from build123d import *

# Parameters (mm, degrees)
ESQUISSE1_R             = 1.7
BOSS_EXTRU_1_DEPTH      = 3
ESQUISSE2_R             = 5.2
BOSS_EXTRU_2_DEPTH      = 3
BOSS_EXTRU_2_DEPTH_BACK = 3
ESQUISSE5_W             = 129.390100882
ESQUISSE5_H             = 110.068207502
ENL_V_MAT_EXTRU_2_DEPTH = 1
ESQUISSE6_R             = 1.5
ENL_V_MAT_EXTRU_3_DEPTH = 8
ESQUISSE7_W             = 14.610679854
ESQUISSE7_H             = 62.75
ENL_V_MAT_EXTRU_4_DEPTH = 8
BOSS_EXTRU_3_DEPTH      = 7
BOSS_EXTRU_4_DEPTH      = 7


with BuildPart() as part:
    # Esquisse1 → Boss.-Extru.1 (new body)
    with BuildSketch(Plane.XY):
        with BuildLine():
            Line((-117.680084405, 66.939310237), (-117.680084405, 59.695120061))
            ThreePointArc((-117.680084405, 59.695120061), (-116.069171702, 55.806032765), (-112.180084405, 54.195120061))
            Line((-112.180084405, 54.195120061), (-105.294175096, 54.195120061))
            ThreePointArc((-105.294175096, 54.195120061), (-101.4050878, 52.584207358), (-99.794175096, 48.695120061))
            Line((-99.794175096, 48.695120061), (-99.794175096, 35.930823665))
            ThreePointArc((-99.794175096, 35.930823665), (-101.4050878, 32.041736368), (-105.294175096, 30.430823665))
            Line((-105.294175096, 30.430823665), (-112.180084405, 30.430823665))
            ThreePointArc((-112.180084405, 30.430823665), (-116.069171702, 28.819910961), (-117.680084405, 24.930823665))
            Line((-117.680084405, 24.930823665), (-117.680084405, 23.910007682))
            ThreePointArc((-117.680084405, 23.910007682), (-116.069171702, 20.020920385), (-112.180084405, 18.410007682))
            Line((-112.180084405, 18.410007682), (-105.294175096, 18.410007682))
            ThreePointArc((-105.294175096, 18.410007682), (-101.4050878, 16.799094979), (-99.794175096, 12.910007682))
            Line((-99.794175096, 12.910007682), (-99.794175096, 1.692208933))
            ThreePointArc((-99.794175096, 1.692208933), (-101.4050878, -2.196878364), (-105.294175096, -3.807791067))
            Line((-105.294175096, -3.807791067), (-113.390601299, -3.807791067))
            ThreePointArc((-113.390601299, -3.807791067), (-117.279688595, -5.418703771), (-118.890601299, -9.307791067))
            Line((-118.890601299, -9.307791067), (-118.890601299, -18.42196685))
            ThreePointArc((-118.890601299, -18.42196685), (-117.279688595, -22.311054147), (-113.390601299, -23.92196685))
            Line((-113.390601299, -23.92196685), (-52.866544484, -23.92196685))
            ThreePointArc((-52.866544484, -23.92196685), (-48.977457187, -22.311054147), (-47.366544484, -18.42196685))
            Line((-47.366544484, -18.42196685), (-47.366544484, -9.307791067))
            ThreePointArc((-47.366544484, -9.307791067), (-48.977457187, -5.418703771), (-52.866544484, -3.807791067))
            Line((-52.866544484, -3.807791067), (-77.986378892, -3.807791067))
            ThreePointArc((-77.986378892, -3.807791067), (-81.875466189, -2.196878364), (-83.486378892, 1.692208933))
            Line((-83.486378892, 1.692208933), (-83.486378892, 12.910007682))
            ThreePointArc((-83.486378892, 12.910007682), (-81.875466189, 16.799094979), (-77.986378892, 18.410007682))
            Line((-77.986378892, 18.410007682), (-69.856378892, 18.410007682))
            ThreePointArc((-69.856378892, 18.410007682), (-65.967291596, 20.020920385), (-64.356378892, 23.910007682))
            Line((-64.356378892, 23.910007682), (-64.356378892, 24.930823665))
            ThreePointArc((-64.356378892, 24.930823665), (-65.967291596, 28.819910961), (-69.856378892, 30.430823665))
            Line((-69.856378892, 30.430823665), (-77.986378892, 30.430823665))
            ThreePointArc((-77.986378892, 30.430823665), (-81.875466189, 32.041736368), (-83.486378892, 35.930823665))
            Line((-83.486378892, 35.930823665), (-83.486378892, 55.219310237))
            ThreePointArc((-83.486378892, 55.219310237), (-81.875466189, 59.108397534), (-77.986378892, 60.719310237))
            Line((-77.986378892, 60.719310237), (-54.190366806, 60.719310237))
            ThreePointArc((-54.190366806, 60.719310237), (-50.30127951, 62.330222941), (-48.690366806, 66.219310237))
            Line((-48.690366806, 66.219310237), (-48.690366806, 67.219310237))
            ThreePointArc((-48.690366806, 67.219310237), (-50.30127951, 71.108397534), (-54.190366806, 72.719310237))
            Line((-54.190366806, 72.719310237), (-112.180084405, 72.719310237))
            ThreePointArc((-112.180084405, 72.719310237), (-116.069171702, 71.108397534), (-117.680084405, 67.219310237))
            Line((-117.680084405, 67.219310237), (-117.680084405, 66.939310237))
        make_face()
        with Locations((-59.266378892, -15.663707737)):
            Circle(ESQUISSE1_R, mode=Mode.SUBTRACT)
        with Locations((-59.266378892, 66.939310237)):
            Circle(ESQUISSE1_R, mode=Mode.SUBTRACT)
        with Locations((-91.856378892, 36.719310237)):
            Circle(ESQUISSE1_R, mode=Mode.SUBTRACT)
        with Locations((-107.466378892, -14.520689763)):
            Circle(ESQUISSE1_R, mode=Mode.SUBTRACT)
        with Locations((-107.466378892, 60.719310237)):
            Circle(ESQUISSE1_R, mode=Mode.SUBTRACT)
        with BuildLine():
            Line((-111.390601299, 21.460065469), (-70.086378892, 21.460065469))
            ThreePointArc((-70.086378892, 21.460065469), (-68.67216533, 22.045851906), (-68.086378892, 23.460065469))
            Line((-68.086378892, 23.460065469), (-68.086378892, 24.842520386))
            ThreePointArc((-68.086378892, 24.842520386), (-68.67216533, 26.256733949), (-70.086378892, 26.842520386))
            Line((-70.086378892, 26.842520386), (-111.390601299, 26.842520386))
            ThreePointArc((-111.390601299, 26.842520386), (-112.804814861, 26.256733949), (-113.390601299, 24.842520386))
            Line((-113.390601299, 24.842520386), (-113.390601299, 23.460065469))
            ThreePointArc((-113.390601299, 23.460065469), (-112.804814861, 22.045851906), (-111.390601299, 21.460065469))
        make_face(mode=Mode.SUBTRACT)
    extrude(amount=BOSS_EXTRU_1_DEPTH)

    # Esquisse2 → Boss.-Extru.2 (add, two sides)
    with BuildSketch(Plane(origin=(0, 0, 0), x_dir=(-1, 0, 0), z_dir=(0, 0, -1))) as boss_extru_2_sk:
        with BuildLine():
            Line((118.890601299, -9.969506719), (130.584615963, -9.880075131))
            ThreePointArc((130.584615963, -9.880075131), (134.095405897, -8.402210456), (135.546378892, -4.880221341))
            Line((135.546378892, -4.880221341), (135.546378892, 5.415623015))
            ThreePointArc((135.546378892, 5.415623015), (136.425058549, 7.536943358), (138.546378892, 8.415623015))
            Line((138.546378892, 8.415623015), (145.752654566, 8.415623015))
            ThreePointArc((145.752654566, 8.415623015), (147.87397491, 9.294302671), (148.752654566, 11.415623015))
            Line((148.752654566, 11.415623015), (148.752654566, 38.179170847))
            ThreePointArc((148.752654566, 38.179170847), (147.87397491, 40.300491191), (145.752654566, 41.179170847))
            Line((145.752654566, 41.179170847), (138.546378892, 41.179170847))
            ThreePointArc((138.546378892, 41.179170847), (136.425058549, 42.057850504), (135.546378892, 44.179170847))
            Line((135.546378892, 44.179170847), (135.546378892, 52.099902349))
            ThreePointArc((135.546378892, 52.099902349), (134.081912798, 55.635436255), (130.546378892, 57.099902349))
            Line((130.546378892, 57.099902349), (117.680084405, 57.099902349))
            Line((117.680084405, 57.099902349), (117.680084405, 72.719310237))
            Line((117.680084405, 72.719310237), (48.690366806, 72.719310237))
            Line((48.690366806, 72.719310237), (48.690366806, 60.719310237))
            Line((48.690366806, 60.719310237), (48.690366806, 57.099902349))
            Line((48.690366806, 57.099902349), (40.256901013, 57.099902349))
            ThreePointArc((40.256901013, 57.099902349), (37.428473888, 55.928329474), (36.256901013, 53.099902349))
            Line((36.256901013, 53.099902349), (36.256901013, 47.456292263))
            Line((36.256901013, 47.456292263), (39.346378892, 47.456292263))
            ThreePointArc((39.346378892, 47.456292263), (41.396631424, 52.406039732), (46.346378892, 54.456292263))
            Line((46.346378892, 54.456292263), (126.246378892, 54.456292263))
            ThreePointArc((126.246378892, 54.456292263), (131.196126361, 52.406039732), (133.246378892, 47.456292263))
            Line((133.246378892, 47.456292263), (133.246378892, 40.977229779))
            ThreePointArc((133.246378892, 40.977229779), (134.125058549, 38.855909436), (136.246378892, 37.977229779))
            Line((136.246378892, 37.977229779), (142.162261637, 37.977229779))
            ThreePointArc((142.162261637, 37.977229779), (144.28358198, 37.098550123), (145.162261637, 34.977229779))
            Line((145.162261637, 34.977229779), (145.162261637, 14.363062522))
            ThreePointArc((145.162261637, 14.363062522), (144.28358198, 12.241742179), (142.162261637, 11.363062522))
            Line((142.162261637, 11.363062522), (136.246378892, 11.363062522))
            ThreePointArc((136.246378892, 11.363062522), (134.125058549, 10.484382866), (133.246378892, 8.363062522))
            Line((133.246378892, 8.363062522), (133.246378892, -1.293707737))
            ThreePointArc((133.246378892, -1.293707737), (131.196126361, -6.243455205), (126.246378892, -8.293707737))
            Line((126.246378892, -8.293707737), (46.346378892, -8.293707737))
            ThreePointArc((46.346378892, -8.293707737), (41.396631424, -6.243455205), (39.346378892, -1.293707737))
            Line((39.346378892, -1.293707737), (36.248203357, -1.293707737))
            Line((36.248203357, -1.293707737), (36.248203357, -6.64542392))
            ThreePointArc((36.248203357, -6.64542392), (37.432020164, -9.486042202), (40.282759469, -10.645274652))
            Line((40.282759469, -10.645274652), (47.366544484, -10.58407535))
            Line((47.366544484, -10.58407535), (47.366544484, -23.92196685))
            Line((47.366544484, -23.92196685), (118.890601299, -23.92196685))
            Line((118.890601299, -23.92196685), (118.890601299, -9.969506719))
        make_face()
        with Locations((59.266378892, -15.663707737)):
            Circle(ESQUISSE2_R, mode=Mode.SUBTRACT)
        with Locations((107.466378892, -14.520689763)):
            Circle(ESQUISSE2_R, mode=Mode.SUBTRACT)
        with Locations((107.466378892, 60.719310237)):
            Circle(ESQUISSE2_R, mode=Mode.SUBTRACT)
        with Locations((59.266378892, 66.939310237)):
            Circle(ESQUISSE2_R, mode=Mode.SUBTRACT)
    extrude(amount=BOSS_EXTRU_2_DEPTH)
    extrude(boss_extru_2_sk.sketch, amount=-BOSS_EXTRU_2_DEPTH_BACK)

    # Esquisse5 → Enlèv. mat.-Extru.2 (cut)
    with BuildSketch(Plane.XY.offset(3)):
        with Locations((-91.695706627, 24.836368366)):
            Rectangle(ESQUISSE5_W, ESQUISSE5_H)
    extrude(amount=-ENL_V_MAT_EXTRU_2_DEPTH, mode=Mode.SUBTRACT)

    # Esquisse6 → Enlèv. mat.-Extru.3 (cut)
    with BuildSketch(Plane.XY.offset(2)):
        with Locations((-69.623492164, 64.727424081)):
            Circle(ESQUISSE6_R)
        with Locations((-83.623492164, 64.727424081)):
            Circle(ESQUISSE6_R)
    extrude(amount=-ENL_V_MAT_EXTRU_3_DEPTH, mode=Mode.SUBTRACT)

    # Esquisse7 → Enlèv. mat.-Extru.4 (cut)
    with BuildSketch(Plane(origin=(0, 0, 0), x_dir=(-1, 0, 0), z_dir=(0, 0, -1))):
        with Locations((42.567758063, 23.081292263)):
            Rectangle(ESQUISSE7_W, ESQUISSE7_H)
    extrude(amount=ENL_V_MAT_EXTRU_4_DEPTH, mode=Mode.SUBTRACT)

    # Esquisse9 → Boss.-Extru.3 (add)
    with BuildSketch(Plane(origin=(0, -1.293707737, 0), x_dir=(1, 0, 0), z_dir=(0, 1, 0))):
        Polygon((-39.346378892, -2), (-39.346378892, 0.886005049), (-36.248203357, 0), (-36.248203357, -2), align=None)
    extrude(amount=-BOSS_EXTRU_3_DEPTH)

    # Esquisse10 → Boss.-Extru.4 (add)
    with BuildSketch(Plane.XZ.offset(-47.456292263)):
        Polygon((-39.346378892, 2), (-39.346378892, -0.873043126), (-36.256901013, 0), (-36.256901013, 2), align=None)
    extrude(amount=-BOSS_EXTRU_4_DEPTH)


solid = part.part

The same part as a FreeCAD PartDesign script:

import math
import FreeCAD as App
import Part
import Sketcher
Q = App.Units.Quantity

doc = App.newDocument("Part")
params = doc.addObject("Spreadsheet::Sheet", "Params")
for row, (alias, value) in enumerate([
    ("sketch1_radius", "2 mm"),
    ("sketch1_diameter", "3.4 mm"),
    ("sketch1_radius2", "5.5 mm"),
    ("sketch1_height", "1 mm"),
    ("sketch1_width", "8.13 mm"),
    ("pad1_length", "3 mm"),
    ("sketch2_radius", "5 mm"),
    ("sketch2_radius2", "3 mm"),
    ("sketch2_radius3", "4 mm"),
    ("sketch2_radius4", "7 mm"),
    ("sketch2_diameter", "10.4 mm"),
    ("pad2_length", "3 mm"),
    ("pad2_length2", "3 mm"),
    ("pocket1_length", "1 mm"),
    ("sketch4_diameter", "3 mm"),
    ("pocket2_length", "8 mm"),
    ("sketch5_height", "62.75 mm"),
    ("pocket3_length", "8 mm"),
    ("sketch6_height", "2 mm"),
    ("pad3_length", "7 mm"),
    ("sketch7_height", "2 mm"),
    ("pad4_length", "7 mm"),
], start=1):
    params.set(f"A{row}", alias)
    params.set(f"B{row}", "=" + value)
    params.setAlias(f"B{row}", alias)

body = doc.addObject("PartDesign::Body", "Body")

# Sketch on XY plane
sketch1 = body.newObject("Sketcher::SketchObject", "Sketch")
sketch1.AttachmentSupport = (doc.getObject("XY_Plane"), [""])
sketch1.MapMode = "FlatFace"
sketch1.addGeometry(Part.ArcOfCircle(Part.Circle(App.Vector(-112.2, 59.7, 0), App.Vector(0, 0, 1), 5.5), math.radians(180), math.radians(270)), False)
sketch1.addGeometry(Part.LineSegment(App.Vector(-112.2, 54.2, 0), App.Vector(-105.3, 54.2, 0)), False)
sketch1.addGeometry(Part.ArcOfCircle(Part.Circle(App.Vector(-105.3, 48.7, 0), App.Vector(0, 0, 1), 5.5), math.radians(0), math.radians(90)), False)
sketch1.addGeometry(Part.LineSegment(App.Vector(-99.8, 48.7, 0), App.Vector(-99.8, 35.9, 0)), False)
sketch1.addGeometry(Part.ArcOfCircle(Part.Circle(App.Vector(-105.3, 35.9, 0), App.Vector(0, 0, 1), 5.5), math.radians(-90), math.radians(0)), False)
sketch1.addGeometry(Part.LineSegment(App.Vector(-105.3, 30.4, 0), App.Vector(-112.2, 30.4, 0)), False)
sketch1.addGeometry(Part.ArcOfCircle(Part.Circle(App.Vector(-112.2, 24.9, 0), App.Vector(0, 0, 1), 5.5), math.radians(90), math.radians(180)), False)
sketch1.addGeometry(Part.LineSegment(App.Vector(-117.7, 24.9, 0), App.Vector(-117.7, 23.9, 0)), False)
sketch1.addGeometry(Part.ArcOfCircle(Part.Circle(App.Vector(-112.2, 23.9, 0), App.Vector(0, 0, 1), 5.5), math.radians(180), math.radians(270)), False)
sketch1.addGeometry(Part.LineSegment(App.Vector(-112.2, 18.4, 0), App.Vector(-105.3, 18.4, 0)), False)
sketch1.addGeometry(Part.ArcOfCircle(Part.Circle(App.Vector(-105.3, 12.9, 0), App.Vector(0, 0, 1), 5.5), math.radians(0), math.radians(90)), False)
sketch1.addGeometry(Part.LineSegment(App.Vector(-99.8, 12.9, 0), App.Vector(-99.8, 1.7, 0)), False)
sketch1.addGeometry(Part.ArcOfCircle(Part.Circle(App.Vector(-105.3, 1.7, 0), App.Vector(0, 0, 1), 5.5), math.radians(-90), math.radians(0)), False)
sketch1.addGeometry(Part.LineSegment(App.Vector(-105.3, -3.8, 0), App.Vector(-113.4, -3.8, 0)), False)
sketch1.addGeometry(Part.ArcOfCircle(Part.Circle(App.Vector(-113.4, -9.3, 0), App.Vector(0, 0, 1), 5.5), math.radians(90), math.radians(180)), False)
sketch1.addGeometry(Part.LineSegment(App.Vector(-118.9, -9.3, 0), App.Vector(-118.9, -18.4, 0)), False)
sketch1.addGeometry(Part.ArcOfCircle(Part.Circle(App.Vector(-113.4, -18.4, 0), App.Vector(0, 0, 1), 5.5), math.radians(180), math.radians(270)), False)
sketch1.addGeometry(Part.LineSegment(App.Vector(-113.4, -23.9, 0), App.Vector(-52.9, -23.9, 0)), False)
sketch1.addGeometry(Part.ArcOfCircle(Part.Circle(App.Vector(-52.9, -18.4, 0), App.Vector(0, 0, 1), 5.5), math.radians(-90), math.radians(0)), False)
sketch1.addGeometry(Part.LineSegment(App.Vector(-47.4, -18.4, 0), App.Vector(-47.4, -9.3, 0)), False)
sketch1.addGeometry(Part.ArcOfCircle(Part.Circle(App.Vector(-52.9, -9.3, 0), App.Vector(0, 0, 1), 5.5), math.radians(0), math.radians(90)), False)
sketch1.addGeometry(Part.LineSegment(App.Vector(-52.9, -3.8, 0), App.Vector(-78, -3.8, 0)), False)
sketch1.addGeometry(Part.ArcOfCircle(Part.Circle(App.Vector(-78, 1.7, 0), App.Vector(0, 0, 1), 5.5), math.radians(180), math.radians(270)), False)
sketch1.addGeometry(Part.LineSegment(App.Vector(-83.5, 1.7, 0), App.Vector(-83.5, 12.9, 0)), False)
sketch1.addGeometry(Part.ArcOfCircle(Part.Circle(App.Vector(-78, 12.9, 0), App.Vector(0, 0, 1), 5.5), math.radians(90), math.radians(180)), False)
sketch1.addGeometry(Part.LineSegment(App.Vector(-78, 18.4, 0), App.Vector(-69.9, 18.4, 0)), False)
sketch1.addGeometry(Part.ArcOfCircle(Part.Circle(App.Vector(-69.9, 23.9, 0), App.Vector(0, 0, 1), 5.5), math.radians(-90), math.radians(0)), False)
sketch1.addGeometry(Part.LineSegment(App.Vector(-64.4, 23.9, 0), App.Vector(-64.4, 24.9, 0)), False)
sketch1.addGeometry(Part.ArcOfCircle(Part.Circle(App.Vector(-69.9, 24.9, 0), App.Vector(0, 0, 1), 5.5), math.radians(0), math.radians(90)), False)
sketch1.addGeometry(Part.LineSegment(App.Vector(-69.9, 30.4, 0), App.Vector(-78, 30.4, 0)), False)
sketch1.addGeometry(Part.ArcOfCircle(Part.Circle(App.Vector(-78, 35.9, 0), App.Vector(0, 0, 1), 5.5), math.radians(180), math.radians(270)), False)
sketch1.addGeometry(Part.LineSegment(App.Vector(-83.5, 35.9, 0), App.Vector(-83.5, 55.2, 0)), False)
sketch1.addGeometry(Part.ArcOfCircle(Part.Circle(App.Vector(-78, 55.2, 0), App.Vector(0, 0, 1), 5.5), math.radians(90), math.radians(180)), False)
sketch1.addGeometry(Part.LineSegment(App.Vector(-78, 60.7, 0), App.Vector(-54.2, 60.7, 0)), False)
sketch1.addGeometry(Part.ArcOfCircle(Part.Circle(App.Vector(-54.2, 66.2, 0), App.Vector(0, 0, 1), 5.5), math.radians(-90), math.radians(0)), False)
sketch1.addGeometry(Part.LineSegment(App.Vector(-48.7, 66.2, 0), App.Vector(-48.7, 67.2, 0)), False)
sketch1.addGeometry(Part.ArcOfCircle(Part.Circle(App.Vector(-54.2, 67.2, 0), App.Vector(0, 0, 1), 5.5), math.radians(0), math.radians(90)), False)
sketch1.addGeometry(Part.LineSegment(App.Vector(-54.2, 72.7, 0), App.Vector(-112.2, 72.7, 0)), False)
sketch1.addGeometry(Part.ArcOfCircle(Part.Circle(App.Vector(-112.2, 67.2, 0), App.Vector(0, 0, 1), 5.5), math.radians(90), math.radians(180)), False)
sketch1.addGeometry(Part.LineSegment(App.Vector(-117.7, 67.2, 0), App.Vector(-117.7, 59.7, 0)), False)
sketch1.addGeometry(Part.Circle(App.Vector(-107.5, -14.5, 0), App.Vector(0, 0, 1), 1.7), False)
sketch1.addGeometry(Part.LineSegment(App.Vector(-70.1, 21.5, 0), App.Vector(-111.4, 21.5, 0)), False)
sketch1.addGeometry(Part.ArcOfCircle(Part.Circle(App.Vector(-111.4, 23.5, 0), App.Vector(0, 0, 1), 2), math.radians(180), math.radians(270)), False)
sketch1.addGeometry(Part.LineSegment(App.Vector(-113.4, 23.5, 0), App.Vector(-113.4, 24.8, 0)), False)
sketch1.addGeometry(Part.ArcOfCircle(Part.Circle(App.Vector(-111.4, 24.8, 0), App.Vector(0, 0, 1), 2), math.radians(90), math.radians(180)), False)
sketch1.addGeometry(Part.LineSegment(App.Vector(-111.4, 26.8, 0), App.Vector(-70.1, 26.8, 0)), False)
sketch1.addGeometry(Part.ArcOfCircle(Part.Circle(App.Vector(-70.1, 24.8, 0), App.Vector(0, 0, 1), 2), math.radians(0), math.radians(90)), False)
sketch1.addGeometry(Part.LineSegment(App.Vector(-68.1, 24.8, 0), App.Vector(-68.1, 23.5, 0)), False)
sketch1.addGeometry(Part.ArcOfCircle(Part.Circle(App.Vector(-70.1, 23.5, 0), App.Vector(0, 0, 1), 2), math.radians(-90), math.radians(0)), False)
sketch1.addGeometry(Part.Circle(App.Vector(-59.3, -15.7, 0), App.Vector(0, 0, 1), 1.7), False)
sketch1.addGeometry(Part.Circle(App.Vector(-91.9, 36.7, 0), App.Vector(0, 0, 1), 1.7), False)
sketch1.addGeometry(Part.Circle(App.Vector(-107.5, 60.7, 0), App.Vector(0, 0, 1), 1.7), False)
sketch1.addGeometry(Part.Circle(App.Vector(-59.3, 66.9, 0), App.Vector(0, 0, 1), 1.7), False)
sketch1.addConstraint(Sketcher.Constraint("Tangent", 0, 2, 1, 1))
sketch1.addConstraint(Sketcher.Constraint("Tangent", 1, 2, 2, 2))
sketch1.addConstraint(Sketcher.Constraint("Tangent", 2, 1, 3, 1))
sketch1.addConstraint(Sketcher.Constraint("Tangent", 3, 2, 4, 2))
sketch1.addConstraint(Sketcher.Constraint("Tangent", 4, 1, 5, 1))
sketch1.addConstraint(Sketcher.Constraint("Tangent", 5, 2, 6, 1))
sketch1.addConstraint(Sketcher.Constraint("Tangent", 6, 2, 7, 1))
sketch1.addConstraint(Sketcher.Constraint("Tangent", 7, 2, 8, 1))
sketch1.addConstraint(Sketcher.Constraint("Tangent", 8, 2, 9, 1))
sketch1.addConstraint(Sketcher.Constraint("Tangent", 9, 2, 10, 2))
sketch1.addConstraint(Sketcher.Constraint("Tangent", 10, 1, 11, 1))
sketch1.addConstraint(Sketcher.Constraint("Tangent", 11, 2, 12, 2))
sketch1.addConstraint(Sketcher.Constraint("Tangent", 12, 1, 13, 1))
sketch1.addConstraint(Sketcher.Constraint("Tangent", 13, 2, 14, 1))
sketch1.addConstraint(Sketcher.Constraint("Tangent", 14, 2, 15, 1))
sketch1.addConstraint(Sketcher.Constraint("Tangent", 15, 2, 16, 1))
sketch1.addConstraint(Sketcher.Constraint("Tangent", 16, 2, 17, 1))
sketch1.addConstraint(Sketcher.Constraint("Tangent", 17, 2, 18, 1))
sketch1.addConstraint(Sketcher.Constraint("Tangent", 18, 2, 19, 1))
sketch1.addConstraint(Sketcher.Constraint("Tangent", 19, 2, 20, 1))
sketch1.addConstraint(Sketcher.Constraint("Tangent", 20, 2, 21, 1))
sketch1.addConstraint(Sketcher.Constraint("Tangent", 21, 2, 22, 2))
sketch1.addConstraint(Sketcher.Constraint("Tangent", 22, 1, 23, 1))
sketch1.addConstraint(Sketcher.Constraint("Tangent", 23, 2, 24, 2))
sketch1.addConstraint(Sketcher.Constraint("Tangent", 24, 1, 25, 1))
sketch1.addConstraint(Sketcher.Constraint("Tangent", 25, 2, 26, 1))
sketch1.addConstraint(Sketcher.Constraint("Tangent", 26, 2, 27, 1))
sketch1.addConstraint(Sketcher.Constraint("Tangent", 27, 2, 28, 1))
sketch1.addConstraint(Sketcher.Constraint("Tangent", 28, 2, 29, 1))
sketch1.addConstraint(Sketcher.Constraint("Tangent", 29, 2, 30, 2))
sketch1.addConstraint(Sketcher.Constraint("Tangent", 30, 1, 31, 1))
sketch1.addConstraint(Sketcher.Constraint("Tangent", 31, 2, 32, 2))
sketch1.addConstraint(Sketcher.Constraint("Tangent", 32, 1, 33, 1))
sketch1.addConstraint(Sketcher.Constraint("Tangent", 33, 2, 34, 1))
sketch1.addConstraint(Sketcher.Constraint("Tangent", 34, 2, 35, 1))
sketch1.addConstraint(Sketcher.Constraint("Tangent", 35, 2, 36, 1))
sketch1.addConstraint(Sketcher.Constraint("Tangent", 36, 2, 37, 1))
sketch1.addConstraint(Sketcher.Constraint("Tangent", 37, 2, 38, 1))
sketch1.addConstraint(Sketcher.Constraint("Tangent", 38, 2, 39, 1))
sketch1.addConstraint(Sketcher.Constraint("Tangent", 39, 2, 0, 1))
sketch1.addConstraint(Sketcher.Constraint("Tangent", 41, 2, 42, 2))
sketch1.addConstraint(Sketcher.Constraint("Tangent", 42, 1, 43, 1))
sketch1.addConstraint(Sketcher.Constraint("Tangent", 43, 2, 44, 2))
sketch1.addConstraint(Sketcher.Constraint("Tangent", 44, 1, 45, 1))
sketch1.addConstraint(Sketcher.Constraint("Tangent", 45, 2, 46, 2))
sketch1.addConstraint(Sketcher.Constraint("Tangent", 46, 1, 47, 1))
sketch1.addConstraint(Sketcher.Constraint("Tangent", 47, 2, 48, 2))
sketch1.addConstraint(Sketcher.Constraint("Tangent", 48, 1, 41, 1))
sketch1.addConstraint(Sketcher.Constraint("Horizontal", 1))
sketch1.addConstraint(Sketcher.Constraint("Vertical", 3))
sketch1.addConstraint(Sketcher.Constraint("Horizontal", 5))
sketch1.addConstraint(Sketcher.Constraint("Vertical", 7))
sketch1.addConstraint(Sketcher.Constraint("Horizontal", 9))
sketch1.addConstraint(Sketcher.Constraint("Vertical", 11))
sketch1.addConstraint(Sketcher.Constraint("Horizontal", 13))
sketch1.addConstraint(Sketcher.Constraint("Vertical", 15))
sketch1.addConstraint(Sketcher.Constraint("Horizontal", 17))
sketch1.addConstraint(Sketcher.Constraint("Vertical", 19))
sketch1.addConstraint(Sketcher.Constraint("Horizontal", 21))
sketch1.addConstraint(Sketcher.Constraint("Vertical", 23))
sketch1.addConstraint(Sketcher.Constraint("Horizontal", 25))
sketch1.addConstraint(Sketcher.Constraint("Vertical", 27))
sketch1.addConstraint(Sketcher.Constraint("Horizontal", 29))
sketch1.addConstraint(Sketcher.Constraint("Vertical", 31))
sketch1.addConstraint(Sketcher.Constraint("Horizontal", 33))
sketch1.addConstraint(Sketcher.Constraint("Vertical", 35))
sketch1.addConstraint(Sketcher.Constraint("Horizontal", 37))
sketch1.addConstraint(Sketcher.Constraint("Vertical", 39))
sketch1.addConstraint(Sketcher.Constraint("Horizontal", 41))
sketch1.addConstraint(Sketcher.Constraint("Vertical", 43))
sketch1.addConstraint(Sketcher.Constraint("Horizontal", 45))
sketch1.addConstraint(Sketcher.Constraint("Vertical", 47))
sketch1.addConstraint(Sketcher.Constraint("Equal", 0, 2))
sketch1.addConstraint(Sketcher.Constraint("Equal", 2, 4))
sketch1.addConstraint(Sketcher.Constraint("Equal", 4, 6))
sketch1.addConstraint(Sketcher.Constraint("Equal", 6, 8))
sketch1.addConstraint(Sketcher.Constraint("Equal", 8, 10))
sketch1.addConstraint(Sketcher.Constraint("Equal", 10, 12))
sketch1.addConstraint(Sketcher.Constraint("Equal", 12, 14))
sketch1.addConstraint(Sketcher.Constraint("Equal", 14, 16))
sketch1.addConstraint(Sketcher.Constraint("Equal", 16, 18))
sketch1.addConstraint(Sketcher.Constraint("Equal", 18, 20))
sketch1.addConstraint(Sketcher.Constraint("Equal", 20, 22))
sketch1.addConstraint(Sketcher.Constraint("Equal", 22, 24))
sketch1.addConstraint(Sketcher.Constraint("Equal", 24, 26))
sketch1.addConstraint(Sketcher.Constraint("Equal", 26, 28))
sketch1.addConstraint(Sketcher.Constraint("Equal", 28, 30))
sketch1.addConstraint(Sketcher.Constraint("Equal", 30, 32))
sketch1.addConstraint(Sketcher.Constraint("Equal", 32, 34))
sketch1.addConstraint(Sketcher.Constraint("Equal", 34, 36))
sketch1.addConstraint(Sketcher.Constraint("Equal", 36, 38))
sketch1.addConstraint(Sketcher.Constraint("Equal", 42, 44))
sketch1.addConstraint(Sketcher.Constraint("Equal", 44, 46))
sketch1.addConstraint(Sketcher.Constraint("Equal", 46, 48))
sketch1.addConstraint(Sketcher.Constraint("Equal", 40, 49))
sketch1.addConstraint(Sketcher.Constraint("Equal", 49, 50))
sketch1.addConstraint(Sketcher.Constraint("Equal", 50, 51))
sketch1.addConstraint(Sketcher.Constraint("Equal", 51, 52))
sketch1.addConstraint(Sketcher.Constraint("Horizontal", 14, 3, 20, 3))
sketch1.addConstraint(Sketcher.Constraint("Horizontal", 10, 3, 24, 3))
sketch1.addConstraint(Sketcher.Constraint("Horizontal", 6, 3, 28, 3))
sketch1.addConstraint(Sketcher.Constraint("Horizontal", 51, 3, 32, 1))
sketch1.addConstraint(Sketcher.Constraint("Vertical", 0, 3, 6, 3))
sketch1.addConstraint(Sketcher.Constraint("Vertical", 4, 3, 10, 3))
sketch1.addConstraint(Sketcher.Constraint("Vertical", 24, 3, 30, 3))
sketch1.addConstraint(Sketcher.Constraint("Vertical", 40, 3, 51, 3))
sketch1.addConstraint(Sketcher.Constraint("Vertical", 49, 3, 52, 3))
sketch1.addConstraint(Sketcher.Constraint("Vertical", 16, 2, 42, 1))
sketch1.addConstraint(Sketcher.Constraint("Radius", 42, Q("2 mm")))
sketch1.addConstraint(Sketcher.Constraint("Diameter", 40, Q("3.4 mm")))
sketch1.addConstraint(Sketcher.Constraint("Radius", 0, Q("5.5 mm")))
sketch1.addConstraint(Sketcher.Constraint("DistanceY", 35, 1, 35, 2, Q("1 mm")))
sketch1.addConstraint(Sketcher.Constraint("DistanceX", 25, 1, 25, 2, Q("8.13 mm")))
sketch1.addConstraint(Sketcher.Constraint("DistanceY", 11, 2, 11, 1, Q("11.217799 mm")))
sketch1.addConstraint(Sketcher.Constraint("DistanceX", 1, 1, 1, 2, Q("6.885909 mm")))
sketch1.addConstraint(Sketcher.Constraint("DistanceY", 39, 2, 39, 1, Q("7.52419 mm")))
sketch1.addConstraint(Sketcher.Constraint("DistanceX", 14, 3, -1, 1, Q("113.390601 mm")))
sketch1.addConstraint(Sketcher.Constraint("DistanceX", 13, 2, 13, 1, Q("8.096426 mm")))
sketch1.addConstraint(Sketcher.Constraint("DistanceX", 17, 1, 17, 2, Q("60.524057 mm")))
sketch1.addConstraint(Sketcher.Constraint("DistanceX", 21, 2, 21, 1, Q("25.119834 mm")))
sketch1.addConstraint(Sketcher.Constraint("DistanceX", 33, 1, 33, 2, Q("23.796012 mm")))
sketch1.addConstraint(Sketcher.Constraint("DistanceX", 41, 2, 41, 1, Q("41.304222 mm")))
sketch1.addConstraint(Sketcher.Constraint("DistanceY", 3, 2, 3, 1, Q("12.764296 mm")))
sketch1.addConstraint(Sketcher.Constraint("DistanceY", 7, 2, 7, 1, Q("1.020816 mm")))
sketch1.addConstraint(Sketcher.Constraint("DistanceY", 15, 2, 15, 1, Q("9.114176 mm")))
sketch1.addConstraint(Sketcher.Constraint("DistanceY", 43, 1, 43, 2, Q("1.382455 mm")))
sketch1.addConstraint(Sketcher.Constraint("DistanceY", -1, 1, 0, 3, Q("59.69512 mm")))
sketch1.addConstraint(Sketcher.Constraint("DistanceX", 40, 3, -1, 1, Q("107.466379 mm")))
sketch1.addConstraint(Sketcher.Constraint("DistanceY", 40, 3, -1, 1, Q("14.52069 mm")))
sketch1.addConstraint(Sketcher.Constraint("DistanceY", -1, 1, 44, 3, Q("24.84252 mm")))
sketch1.addConstraint(Sketcher.Constraint("DistanceX", 49, 3, -1, 1, Q("59.266379 mm")))
sketch1.addConstraint(Sketcher.Constraint("DistanceX", 50, 3, -1, 1, Q("91.856379 mm")))
sketch1.addConstraint(Sketcher.Constraint("DistanceY", -1, 1, 50, 3, Q("36.71931 mm")))
sketch1.addConstraint(Sketcher.Constraint("DistanceY", -1, 1, 52, 3, Q("66.93931 mm")))
sketch1.addConstraint(Sketcher.Constraint("DistanceY", 49, 3, -1, 1, Q("15.663708 mm")))
sketch1.setExpression("Constraints[108]", "Params.sketch1_radius")
sketch1.setExpression("Constraints[109]", "Params.sketch1_diameter")
sketch1.setExpression("Constraints[110]", "Params.sketch1_radius2")
sketch1.setExpression("Constraints[111]", "Params.sketch1_height")
sketch1.setExpression("Constraints[112]", "Params.sketch1_width")
pad1 = body.newObject("PartDesign::Pad", "Pad")
pad1.Profile = sketch1
pad1.setExpression("Length", "Params.pad1_length")

# Sketch on XY plane
sketch2 = body.newObject("Sketcher::SketchObject", "Sketch001")
sketch2.AttachmentSupport = (doc.getObject("XY_Plane"), [""])
sketch2.MapMode = "FlatFace"
sketch2.addGeometry(Part.LineSegment(App.Vector(-118.9, -10, 0), App.Vector(-130.6, -9.9, 0)), False)
sketch2.addGeometry(Part.ArcOfCircle(Part.Circle(App.Vector(-130.5, -4.9, 0), App.Vector(0, 0, 1), 5), math.radians(180), math.radians(270)), False)
sketch2.addGeometry(Part.LineSegment(App.Vector(-135.5, -4.9, 0), App.Vector(-135.5, 5.4, 0)), False)
sketch2.addGeometry(Part.ArcOfCircle(Part.Circle(App.Vector(-138.5, 5.4, 0), App.Vector(0, 0, 1), 3), math.radians(0), math.radians(90)), False)
sketch2.addGeometry(Part.LineSegment(App.Vector(-138.5, 8.4, 0), App.Vector(-145.8, 8.4, 0)), False)
sketch2.addGeometry(Part.ArcOfCircle(Part.Circle(App.Vector(-145.8, 11.4, 0), App.Vector(0, 0, 1), 3), math.radians(180), math.radians(270)), False)
sketch2.addGeometry(Part.LineSegment(App.Vector(-148.8, 11.4, 0), App.Vector(-148.8, 38.2, 0)), False)
sketch2.addGeometry(Part.ArcOfCircle(Part.Circle(App.Vector(-145.8, 38.2, 0), App.Vector(0, 0, 1), 3), math.radians(90), math.radians(180)), False)
sketch2.addGeometry(Part.LineSegment(App.Vector(-145.8, 41.2, 0), App.Vector(-138.5, 41.2, 0)), False)
sketch2.addGeometry(Part.ArcOfCircle(Part.Circle(App.Vector(-138.5, 44.2, 0), App.Vector(0, 0, 1), 3), math.radians(-90), math.radians(0)), False)
sketch2.addGeometry(Part.LineSegment(App.Vector(-135.5, 44.2, 0), App.Vector(-135.5, 52.1, 0)), False)
sketch2.addGeometry(Part.ArcOfCircle(Part.Circle(App.Vector(-130.5, 52.1, 0), App.Vector(0, 0, 1), 5), math.radians(90), math.radians(180)), False)
sketch2.addGeometry(Part.LineSegment(App.Vector(-130.5, 57.1, 0), App.Vector(-117.7, 57.1, 0)), False)
sketch2.addGeometry(Part.LineSegment(App.Vector(-117.7, 57.1, 0), App.Vector(-117.7, 72.7, 0)), False)
sketch2.addGeometry(Part.LineSegment(App.Vector(-117.7, 72.7, 0), App.Vector(-48.7, 72.7, 0)), False)
sketch2.addGeometry(Part.LineSegment(App.Vector(-48.7, 72.7, 0), App.Vector(-48.7, 57.1, 0)), False)
sketch2.addGeometry(Part.LineSegment(App.Vector(-48.7, 57.1, 0), App.Vector(-40.3, 57.1, 0)), False)
sketch2.addGeometry(Part.ArcOfCircle(Part.Circle(App.Vector(-40.3, 53.1, 0), App.Vector(0, 0, 1), 4), math.radians(0), math.radians(90)), False)
sketch2.addGeometry(Part.LineSegment(App.Vector(-36.3, 53.1, 0), App.Vector(-36.3, 47.5, 0)), False)
sketch2.addGeometry(Part.LineSegment(App.Vector(-36.3, 47.5, 0), App.Vector(-39.3, 47.5, 0)), False)
sketch2.addGeometry(Part.ArcOfCircle(Part.Circle(App.Vector(-46.3, 47.5, 0), App.Vector(0, 0, 1), 7), math.radians(0), math.radians(90)), False)
sketch2.addGeometry(Part.LineSegment(App.Vector(-46.3, 54.5, 0), App.Vector(-126.2, 54.5, 0)), False)
sketch2.addGeometry(Part.ArcOfCircle(Part.Circle(App.Vector(-126.2, 47.5, 0), App.Vector(0, 0, 1), 7), math.radians(90), math.radians(180)), False)
sketch2.addGeometry(Part.LineSegment(App.Vector(-133.2, 47.5, 0), App.Vector(-133.2, 41, 0)), False)
sketch2.addGeometry(Part.ArcOfCircle(Part.Circle(App.Vector(-136.2, 41, 0), App.Vector(0, 0, 1), 3), math.radians(-90), math.radians(0)), False)
sketch2.addGeometry(Part.LineSegment(App.Vector(-136.2, 38, 0), App.Vector(-142.2, 38, 0)), False)
sketch2.addGeometry(Part.ArcOfCircle(Part.Circle(App.Vector(-142.2, 35, 0), App.Vector(0, 0, 1), 3), math.radians(90), math.radians(180)), False)
sketch2.addGeometry(Part.LineSegment(App.Vector(-145.2, 35, 0), App.Vector(-145.2, 14.4, 0)), False)
sketch2.addGeometry(Part.ArcOfCircle(Part.Circle(App.Vector(-142.2, 14.4, 0), App.Vector(0, 0, 1), 3), math.radians(-180), math.radians(-90)), False)
sketch2.addGeometry(Part.LineSegment(App.Vector(-142.2, 11.4, 0), App.Vector(-136.2, 11.4, 0)), False)
sketch2.addGeometry(Part.ArcOfCircle(Part.Circle(App.Vector(-136.2, 8.4, 0), App.Vector(0, 0, 1), 3), math.radians(0), math.radians(90)), False)
sketch2.addGeometry(Part.LineSegment(App.Vector(-133.2, 8.4, 0), App.Vector(-133.2, -1.3, 0)), False)
sketch2.addGeometry(Part.ArcOfCircle(Part.Circle(App.Vector(-126.2, -1.3, 0), App.Vector(0, 0, 1), 7), math.radians(180), math.radians(270)), False)
sketch2.addGeometry(Part.LineSegment(App.Vector(-126.2, -8.3, 0), App.Vector(-46.3, -8.3, 0)), False)
sketch2.addGeometry(Part.ArcOfCircle(Part.Circle(App.Vector(-46.3, -1.3, 0), App.Vector(0, 0, 1), 7), math.radians(-90), math.radians(0)), False)
sketch2.addGeometry(Part.LineSegment(App.Vector(-39.3, -1.3, 0), App.Vector(-36.2, -1.3, 0)), False)
sketch2.addGeometry(Part.LineSegment(App.Vector(-36.2, -1.3, 0), App.Vector(-36.2, -6.6, 0)), False)
sketch2.addGeometry(Part.ArcOfCircle(Part.Circle(App.Vector(-40.2, -6.6, 0), App.Vector(0, 0, 1), 4), math.radians(-90), math.radians(0)), False)
sketch2.addGeometry(Part.LineSegment(App.Vector(-40.3, -10.6, 0), App.Vector(-47.4, -10.6, 0)), False)
sketch2.addGeometry(Part.LineSegment(App.Vector(-47.4, -10.6, 0), App.Vector(-47.4, -23.9, 0)), False)
sketch2.addGeometry(Part.LineSegment(App.Vector(-47.4, -23.9, 0), App.Vector(-118.9, -23.9, 0)), False)
sketch2.addGeometry(Part.LineSegment(App.Vector(-118.9, -23.9, 0), App.Vector(-118.9, -10, 0)), False)
sketch2.addGeometry(Part.Circle(App.Vector(-59.3, -15.7, 0), App.Vector(0, 0, 1), 5.2), False)
sketch2.addGeometry(Part.Circle(App.Vector(-107.5, -14.5, 0), App.Vector(0, 0, 1), 5.2), False)
sketch2.addGeometry(Part.Circle(App.Vector(-59.3, 66.9, 0), App.Vector(0, 0, 1), 5.2), False)
sketch2.addGeometry(Part.Circle(App.Vector(-107.5, 60.7, 0), App.Vector(0, 0, 1), 5.2), False)
sketch2.addConstraint(Sketcher.Constraint("Tangent", 0, 2, 1, 2))
sketch2.addConstraint(Sketcher.Constraint("Tangent", 1, 1, 2, 1))
sketch2.addConstraint(Sketcher.Constraint("Tangent", 2, 2, 3, 1))
sketch2.addConstraint(Sketcher.Constraint("Tangent", 3, 2, 4, 1))
sketch2.addConstraint(Sketcher.Constraint("Tangent", 4, 2, 5, 2))
sketch2.addConstraint(Sketcher.Constraint("Tangent", 5, 1, 6, 1))
sketch2.addConstraint(Sketcher.Constraint("Tangent", 6, 2, 7, 2))
sketch2.addConstraint(Sketcher.Constraint("Tangent", 7, 1, 8, 1))
sketch2.addConstraint(Sketcher.Constraint("Tangent", 8, 2, 9, 1))
sketch2.addConstraint(Sketcher.Constraint("Tangent", 9, 2, 10, 1))
sketch2.addConstraint(Sketcher.Constraint("Tangent", 10, 2, 11, 2))
sketch2.addConstraint(Sketcher.Constraint("Tangent", 11, 1, 12, 1))
sketch2.addConstraint(Sketcher.Constraint("Coincident", 12, 2, 13, 1))
sketch2.addConstraint(Sketcher.Constraint("Coincident", 13, 2, 14, 1))
sketch2.addConstraint(Sketcher.Constraint("Coincident", 14, 2, 15, 1))
sketch2.addConstraint(Sketcher.Constraint("Coincident", 15, 2, 16, 1))
sketch2.addConstraint(Sketcher.Constraint("Tangent", 16, 2, 17, 2))
sketch2.addConstraint(Sketcher.Constraint("Tangent", 17, 1, 18, 1))
sketch2.addConstraint(Sketcher.Constraint("Coincident", 18, 2, 19, 1))
sketch2.addConstraint(Sketcher.Constraint("Coincident", 19, 2, 20, 1))
sketch2.addConstraint(Sketcher.Constraint("Tangent", 20, 2, 21, 1))
sketch2.addConstraint(Sketcher.Constraint("Tangent", 21, 2, 22, 1))
sketch2.addConstraint(Sketcher.Constraint("Tangent", 22, 2, 23, 1))
sketch2.addConstraint(Sketcher.Constraint("Tangent", 23, 2, 24, 2))
sketch2.addConstraint(Sketcher.Constraint("Tangent", 24, 1, 25, 1))
sketch2.addConstraint(Sketcher.Constraint("Tangent", 25, 2, 26, 1))
sketch2.addConstraint(Sketcher.Constraint("Tangent", 26, 2, 27, 1))
sketch2.addConstraint(Sketcher.Constraint("Tangent", 27, 2, 28, 1))
sketch2.addConstraint(Sketcher.Constraint("Tangent", 28, 2, 29, 1))
sketch2.addConstraint(Sketcher.Constraint("Tangent", 29, 2, 30, 2))
sketch2.addConstraint(Sketcher.Constraint("Tangent", 30, 1, 31, 1))
sketch2.addConstraint(Sketcher.Constraint("Tangent", 31, 2, 32, 1))
sketch2.addConstraint(Sketcher.Constraint("Tangent", 32, 2, 33, 1))
sketch2.addConstraint(Sketcher.Constraint("Tangent", 33, 2, 34, 1))
sketch2.addConstraint(Sketcher.Constraint("Coincident", 34, 2, 35, 1))
sketch2.addConstraint(Sketcher.Constraint("Coincident", 35, 2, 36, 1))
sketch2.addConstraint(Sketcher.Constraint("Tangent", 36, 2, 37, 2))
sketch2.addConstraint(Sketcher.Constraint("Tangent", 37, 1, 38, 1))
sketch2.addConstraint(Sketcher.Constraint("Coincident", 38, 2, 39, 1))
sketch2.addConstraint(Sketcher.Constraint("Coincident", 39, 2, 40, 1))
sketch2.addConstraint(Sketcher.Constraint("Coincident", 40, 2, 41, 1))
sketch2.addConstraint(Sketcher.Constraint("Coincident", 41, 2, 0, 1))
sketch2.addConstraint(Sketcher.Constraint("Vertical", 2))
sketch2.addConstraint(Sketcher.Constraint("Horizontal", 4))
sketch2.addConstraint(Sketcher.Constraint("Vertical", 6))
sketch2.addConstraint(Sketcher.Constraint("Horizontal", 8))
sketch2.addConstraint(Sketcher.Constraint("Vertical", 10))
sketch2.addConstraint(Sketcher.Constraint("Horizontal", 12))
sketch2.addConstraint(Sketcher.Constraint("Vertical", 13))
sketch2.addConstraint(Sketcher.Constraint("Horizontal", 14))
sketch2.addConstraint(Sketcher.Constraint("Vertical", 15))
sketch2.addConstraint(Sketcher.Constraint("Horizontal", 16))
sketch2.addConstraint(Sketcher.Constraint("Vertical", 18))
sketch2.addConstraint(Sketcher.Constraint("Horizontal", 19))
sketch2.addConstraint(Sketcher.Constraint("Horizontal", 21))
sketch2.addConstraint(Sketcher.Constraint("Vertical", 23))
sketch2.addConstraint(Sketcher.Constraint("Horizontal", 25))
sketch2.addConstraint(Sketcher.Constraint("Vertical", 27))
sketch2.addConstraint(Sketcher.Constraint("Horizontal", 29))
sketch2.addConstraint(Sketcher.Constraint("Vertical", 31))
sketch2.addConstraint(Sketcher.Constraint("Horizontal", 33))
sketch2.addConstraint(Sketcher.Constraint("Horizontal", 35))
sketch2.addConstraint(Sketcher.Constraint("Vertical", 36))
sketch2.addConstraint(Sketcher.Constraint("Vertical", 39))
sketch2.addConstraint(Sketcher.Constraint("Horizontal", 40))
sketch2.addConstraint(Sketcher.Constraint("Vertical", 41))
sketch2.addConstraint(Sketcher.Constraint("Equal", 3, 5))
sketch2.addConstraint(Sketcher.Constraint("Equal", 5, 7))
sketch2.addConstraint(Sketcher.Constraint("Equal", 7, 9))
sketch2.addConstraint(Sketcher.Constraint("Equal", 1, 11))
sketch2.addConstraint(Sketcher.Constraint("Equal", 20, 22))
sketch2.addConstraint(Sketcher.Constraint("Equal", 9, 24))
sketch2.addConstraint(Sketcher.Constraint("Equal", 24, 26))
sketch2.addConstraint(Sketcher.Constraint("Equal", 26, 28))
sketch2.addConstraint(Sketcher.Constraint("Equal", 28, 30))
sketch2.addConstraint(Sketcher.Constraint("Equal", 22, 32))
sketch2.addConstraint(Sketcher.Constraint("Equal", 32, 34))
sketch2.addConstraint(Sketcher.Constraint("Equal", 17, 37))
sketch2.addConstraint(Sketcher.Constraint("Equal", 42, 43))
sketch2.addConstraint(Sketcher.Constraint("Equal", 43, 44))
sketch2.addConstraint(Sketcher.Constraint("Equal", 44, 45))
sketch2.addConstraint(Sketcher.Constraint("Horizontal", 12, 2, 15, 2))
sketch2.addConstraint(Sketcher.Constraint("Horizontal", 22, 3, 18, 2))
sketch2.addConstraint(Sketcher.Constraint("Horizontal", 31, 2, 34, 2))
sketch2.addConstraint(Sketcher.Constraint("Vertical", 3, 3, 9, 3))
sketch2.addConstraint(Sketcher.Constraint("Vertical", 24, 3, 30, 3))
sketch2.addConstraint(Sketcher.Constraint("Vertical", 20, 3, 34, 3))
sketch2.addConstraint(Sketcher.Constraint("Vertical", 42, 3, 44, 3))
sketch2.addConstraint(Sketcher.Constraint("Vertical", 43, 3, 45, 3))
sketch2.addConstraint(Sketcher.Constraint("Radius", 1, Q("5 mm")))
sketch2.addConstraint(Sketcher.Constraint("Radius", 3, Q("3 mm")))
sketch2.addConstraint(Sketcher.Constraint("Radius", 17, Q("4 mm")))
sketch2.addConstraint(Sketcher.Constraint("Radius", 20, Q("7 mm")))
sketch2.addConstraint(Sketcher.Constraint("Diameter", 42, Q("10.4 mm")))
sketch2.addConstraint(Sketcher.Constraint("DistanceX", 21, 2, 21, 1, Q("79.9 mm")))
sketch2.addConstraint(Sketcher.Constraint("DistanceY", 10, 1, 10, 2, Q("7.920732 mm")))
sketch2.addConstraint(Sketcher.Constraint("DistanceY", 18, 2, 18, 1, Q("5.64361 mm")))
sketch2.addConstraint(Sketcher.Constraint("DistanceY", 31, 2, 31, 1, Q("9.65677 mm")))
sketch2.addConstraint(Sketcher.Constraint("DistanceY", 39, 2, 39, 1, Q("13.337891 mm")))
sketch2.addConstraint(Sketcher.Constraint("DistanceY", 41, 1, 41, 2, Q("13.95246 mm")))
sketch2.addConstraint(Sketcher.Constraint("DistanceX", 17, 3, -1, 1, Q("40.256901 mm")))
sketch2.addConstraint(Sketcher.Constraint("DistanceX", 40, 2, -1, 1, Q("118.890601 mm")))
sketch2.addConstraint(Sketcher.Constraint("Distance", 38, Q("7.084049 mm")))
sketch2.addConstraint(Sketcher.Constraint("DistanceX", 4, 2, 4, 1, Q("7.206276 mm")))
sketch2.addConstraint(Sketcher.Constraint("DistanceX", 12, 1, 12, 2, Q("12.866294 mm")))
sketch2.addConstraint(Sketcher.Constraint("DistanceX", 14, 1, 14, 2, Q("68.989718 mm")))
sketch2.addConstraint(Sketcher.Constraint("DistanceX", 16, 1, 16, 2, Q("8.433466 mm")))
sketch2.addConstraint(Sketcher.Constraint("DistanceX", 19, 2, 19, 1, Q("3.089478 mm")))
sketch2.addConstraint(Sketcher.Constraint("DistanceX", 25, 2, 25, 1, Q("5.915883 mm")))
sketch2.addConstraint(Sketcher.Constraint("DistanceX", 35, 1, 35, 2, Q("3.098176 mm")))
sketch2.addConstraint(Sketcher.Constraint("DistanceX", 40, 2, 40, 1, Q("71.524057 mm")))
sketch2.addConstraint(Sketcher.Constraint("DistanceY", 2, 1, 2, 2, Q("10.295844 mm")))
sketch2.addConstraint(Sketcher.Constraint("DistanceY", 6, 1, 6, 2, Q("26.763548 mm")))
sketch2.addConstraint(Sketcher.Constraint("DistanceY", 13, 1, 13, 2, Q("15.619408 mm")))
sketch2.addConstraint(Sketcher.Constraint("DistanceY", 23, 2, 23, 1, Q("6.479062 mm")))
sketch2.addConstraint(Sketcher.Constraint("DistanceY", 27, 2, 27, 1, Q("20.614167 mm")))
sketch2.addConstraint(Sketcher.Constraint("DistanceY", 36, 2, 36, 1, Q("5.351716 mm")))
sketch2.addConstraint(Sketcher.Constraint("DistanceY", 1, 3, -1, 1, Q("4.880221 mm")))
sketch2.addConstraint(Sketcher.Constraint("DistanceX", 42, 3, -1, 1, Q("59.266379 mm")))
sketch2.addConstraint(Sketcher.Constraint("DistanceX", 43, 3, -1, 1, Q("107.466379 mm")))
sketch2.addConstraint(Sketcher.Constraint("DistanceY", 43, 3, -1, 1, Q("14.52069 mm")))
sketch2.addConstraint(Sketcher.Constraint("DistanceY", -1, 1, 44, 3, Q("66.93931 mm")))
sketch2.addConstraint(Sketcher.Constraint("DistanceY", -1, 1, 45, 3, Q("60.71931 mm")))
sketch2.addConstraint(Sketcher.Constraint("DistanceY", 42, 3, -1, 1, Q("15.663708 mm")))
sketch2.setExpression("Constraints[89]", "Params.sketch2_radius")
sketch2.setExpression("Constraints[90]", "Params.sketch2_radius2")
sketch2.setExpression("Constraints[91]", "Params.sketch2_radius3")
sketch2.setExpression("Constraints[92]", "Params.sketch2_radius4")
sketch2.setExpression("Constraints[93]", "Params.sketch2_diameter")
pad2 = body.newObject("PartDesign::Pad", "Pad001")
pad2.Profile = sketch2
pad2.Type = "TwoLengths"
pad2.setExpression("Length", "Params.pad2_length")
pad2.setExpression("Length2", "Params.pad2_length2")
pad2.Reversed = True

# Sketch on XY plane
sketch3 = body.newObject("Sketcher::SketchObject", "Sketch002")
sketch3.AttachmentSupport = (doc.getObject("XY_Plane"), [""])
sketch3.MapMode = "FlatFace"
sketch3.AttachmentOffset = App.Placement(App.Vector(0, 0, 3), App.Rotation())
sketch3.addGeometry(Part.LineSegment(App.Vector(-156, 80, 0), App.Vector(-156, -30, 0)), False)
sketch3.addGeometry(Part.LineSegment(App.Vector(-156, -30, 0), App.Vector(-27, -30, 0)), False)
sketch3.addGeometry(Part.LineSegment(App.Vector(-27, -30, 0), App.Vector(-27, 80, 0)), False)
sketch3.addGeometry(Part.LineSegment(App.Vector(-27, 80, 0), App.Vector(-156, 80, 0)), False)
sketch3.addConstraint(Sketcher.Constraint("Coincident", 0, 2, 1, 1))
sketch3.addConstraint(Sketcher.Constraint("Coincident", 1, 2, 2, 1))
sketch3.addConstraint(Sketcher.Constraint("Coincident", 2, 2, 3, 1))
sketch3.addConstraint(Sketcher.Constraint("Coincident", 3, 2, 0, 1))
sketch3.addConstraint(Sketcher.Constraint("Vertical", 0))
sketch3.addConstraint(Sketcher.Constraint("Horizontal", 1))
sketch3.addConstraint(Sketcher.Constraint("Vertical", 2))
sketch3.addConstraint(Sketcher.Constraint("Horizontal", 3))
sketch3.addConstraint(Sketcher.Constraint("DistanceX", 1, 1, 1, 2, Q("129.390101 mm")))
sketch3.addConstraint(Sketcher.Constraint("DistanceY", 0, 2, 0, 1, Q("110.068208 mm")))
sketch3.addConstraint(Sketcher.Constraint("DistanceX", 0, 2, -1, 1, Q("156.390757 mm")))
sketch3.addConstraint(Sketcher.Constraint("DistanceY", 0, 2, -1, 1, Q("30.197735 mm")))
pocket1 = body.newObject("PartDesign::Pocket", "Pocket")
pocket1.Profile = sketch3
pocket1.setExpression("Length", "Params.pocket1_length")

# Sketch on XY plane
sketch4 = body.newObject("Sketcher::SketchObject", "Sketch003")
sketch4.AttachmentSupport = (doc.getObject("XY_Plane"), [""])
sketch4.MapMode = "FlatFace"
sketch4.AttachmentOffset = App.Placement(App.Vector(0, 0, 2), App.Rotation())
sketch4.addGeometry(Part.Circle(App.Vector(-69.6, 64.7, 0), App.Vector(0, 0, 1), 1.5), False)
sketch4.addGeometry(Part.Circle(App.Vector(-83.6, 64.7, 0), App.Vector(0, 0, 1), 1.5), False)
sketch4.addConstraint(Sketcher.Constraint("Equal", 0, 1))
sketch4.addConstraint(Sketcher.Constraint("Horizontal", 0, 3, 1, 3))
sketch4.addConstraint(Sketcher.Constraint("Diameter", 0, Q("3 mm")))
sketch4.addConstraint(Sketcher.Constraint("DistanceX", 1, 3, 0, 3, Q("14 mm")))
sketch4.addConstraint(Sketcher.Constraint("DistanceX", 0, 3, -1, 1, Q("69.623492 mm")))
sketch4.addConstraint(Sketcher.Constraint("DistanceY", -1, 1, 0, 3, Q("64.727424 mm")))
sketch4.setExpression("Constraints[2]", "Params.sketch4_diameter")
pocket2 = body.newObject("PartDesign::Pocket", "Pocket001")
pocket2.Profile = sketch4
pocket2.setExpression("Length", "Params.pocket2_length")

# Sketch on XY plane
sketch5 = body.newObject("Sketcher::SketchObject", "Sketch004")
sketch5.AttachmentSupport = (doc.getObject("XY_Plane"), [""])
sketch5.MapMode = "FlatFace"
sketch5.addGeometry(Part.LineSegment(App.Vector(-35, 54, 0), App.Vector(-35, -8, 0)), False)
sketch5.addGeometry(Part.LineSegment(App.Vector(-35, -8, 0), App.Vector(-50, -8, 0)), False)
sketch5.addGeometry(Part.LineSegment(App.Vector(-50, -8, 0), App.Vector(-50, 54, 0)), False)
sketch5.addGeometry(Part.LineSegment(App.Vector(-50, 54, 0), App.Vector(-35, 54, 0)), False)
sketch5.addConstraint(Sketcher.Constraint("Coincident", 0, 2, 1, 1))
sketch5.addConstraint(Sketcher.Constraint("Coincident", 1, 2, 2, 1))
sketch5.addConstraint(Sketcher.Constraint("Coincident", 2, 2, 3, 1))
sketch5.addConstraint(Sketcher.Constraint("Coincident", 3, 2, 0, 1))
sketch5.addConstraint(Sketcher.Constraint("Vertical", 0))
sketch5.addConstraint(Sketcher.Constraint("Horizontal", 1))
sketch5.addConstraint(Sketcher.Constraint("Vertical", 2))
sketch5.addConstraint(Sketcher.Constraint("Horizontal", 3))
sketch5.addConstraint(Sketcher.Constraint("DistanceY", 0, 2, 0, 1, Q("62.75 mm")))
sketch5.addConstraint(Sketcher.Constraint("DistanceX", 1, 2, 1, 1, Q("14.61068 mm")))
sketch5.addConstraint(Sketcher.Constraint("DistanceX", 0, 2, -1, 1, Q("35.262418 mm")))
sketch5.addConstraint(Sketcher.Constraint("DistanceY", 0, 2, -1, 1, Q("8.293708 mm")))
sketch5.setExpression("Constraints[8]", "Params.sketch5_height")
pocket3 = body.newObject("PartDesign::Pocket", "Pocket002")
pocket3.Profile = sketch5
pocket3.setExpression("Length", "Params.pocket3_length")

# Sketch on XZ plane
sketch6 = body.newObject("Sketcher::SketchObject", "Sketch005")
sketch6.AttachmentSupport = (doc.getObject("XZ_Plane"), [""])
sketch6.MapMode = "FlatFace"
sketch6.AttachmentOffset = App.Placement(App.Vector(0, 0, 1.293708), App.Rotation())
sketch6.addGeometry(Part.LineSegment(App.Vector(-39.3, -0.9, 0), App.Vector(-39.3, 2, 0)), False)
sketch6.addGeometry(Part.LineSegment(App.Vector(-39.3, 2, 0), App.Vector(-36.2, 2, 0)), False)
sketch6.addGeometry(Part.LineSegment(App.Vector(-36.2, 2, 0), App.Vector(-36.2, 0, 0)), False)
sketch6.addGeometry(Part.LineSegment(App.Vector(-36.2, 0, 0), App.Vector(-39.3, -0.9, 0)), False)
sketch6.addConstraint(Sketcher.Constraint("Coincident", 0, 2, 1, 1))
sketch6.addConstraint(Sketcher.Constraint("Coincident", 1, 2, 2, 1))
sketch6.addConstraint(Sketcher.Constraint("Coincident", 2, 2, 3, 1))
sketch6.addConstraint(Sketcher.Constraint("Coincident", 3, 2, 0, 1))
sketch6.addConstraint(Sketcher.Constraint("Vertical", 0))
sketch6.addConstraint(Sketcher.Constraint("Horizontal", 1))
sketch6.addConstraint(Sketcher.Constraint("Vertical", 2))
sketch6.addConstraint(Sketcher.Constraint("PointOnObject", 2, 2, -1))
sketch6.addConstraint(Sketcher.Constraint("DistanceY", 2, 2, 2, 1, Q("2 mm")))
sketch6.addConstraint(Sketcher.Constraint("DistanceX", 1, 1, 1, 2, Q("3.098176 mm")))
sketch6.addConstraint(Sketcher.Constraint("DistanceY", 0, 1, 0, 2, Q("2.886005 mm")))
sketch6.addConstraint(Sketcher.Constraint("DistanceX", 0, 2, -1, 1, Q("39.346379 mm")))
sketch6.setExpression("Constraints[8]", "Params.sketch6_height")
pad3 = body.newObject("PartDesign::Pad", "Pad002")
pad3.Profile = sketch6
pad3.setExpression("Length", "Params.pad3_length")

# Sketch on XZ plane
sketch7 = body.newObject("Sketcher::SketchObject", "Sketch006")
sketch7.AttachmentSupport = (doc.getObject("XZ_Plane"), [""])
sketch7.MapMode = "FlatFace"
sketch7.AttachmentOffset = App.Placement(App.Vector(0, 0, -47.456292), App.Rotation())
sketch7.addGeometry(Part.LineSegment(App.Vector(-39.3, 2, 0), App.Vector(-39.3, -0.9, 0)), False)
sketch7.addGeometry(Part.LineSegment(App.Vector(-39.3, -0.9, 0), App.Vector(-36.3, 0, 0)), False)
sketch7.addGeometry(Part.LineSegment(App.Vector(-36.3, 0, 0), App.Vector(-36.3, 2, 0)), False)
sketch7.addGeometry(Part.LineSegment(App.Vector(-36.3, 2, 0), App.Vector(-39.3, 2, 0)), False)
sketch7.addConstraint(Sketcher.Constraint("Coincident", 0, 2, 1, 1))
sketch7.addConstraint(Sketcher.Constraint("Coincident", 1, 2, 2, 1))
sketch7.addConstraint(Sketcher.Constraint("Coincident", 2, 2, 3, 1))
sketch7.addConstraint(Sketcher.Constraint("Coincident", 3, 2, 0, 1))
sketch7.addConstraint(Sketcher.Constraint("Vertical", 0))
sketch7.addConstraint(Sketcher.Constraint("Vertical", 2))
sketch7.addConstraint(Sketcher.Constraint("Horizontal", 3))
sketch7.addConstraint(Sketcher.Constraint("PointOnObject", 1, 2, -1))
sketch7.addConstraint(Sketcher.Constraint("DistanceY", 2, 1, 2, 2, Q("2 mm")))
sketch7.addConstraint(Sketcher.Constraint("DistanceX", 1, 2, -1, 1, Q("36.256901 mm")))
sketch7.addConstraint(Sketcher.Constraint("DistanceX", 3, 2, 3, 1, Q("3.089478 mm")))
sketch7.addConstraint(Sketcher.Constraint("DistanceY", 0, 2, 0, 1, Q("2.873043 mm")))
sketch7.setExpression("Constraints[8]", "Params.sketch7_height")
pad4 = body.newObject("PartDesign::Pad", "Pad003")
pad4.Profile = sketch7
pad4.setExpression("Length", "Params.pad4_length")
pad4.Reversed = True

doc.recompute()
